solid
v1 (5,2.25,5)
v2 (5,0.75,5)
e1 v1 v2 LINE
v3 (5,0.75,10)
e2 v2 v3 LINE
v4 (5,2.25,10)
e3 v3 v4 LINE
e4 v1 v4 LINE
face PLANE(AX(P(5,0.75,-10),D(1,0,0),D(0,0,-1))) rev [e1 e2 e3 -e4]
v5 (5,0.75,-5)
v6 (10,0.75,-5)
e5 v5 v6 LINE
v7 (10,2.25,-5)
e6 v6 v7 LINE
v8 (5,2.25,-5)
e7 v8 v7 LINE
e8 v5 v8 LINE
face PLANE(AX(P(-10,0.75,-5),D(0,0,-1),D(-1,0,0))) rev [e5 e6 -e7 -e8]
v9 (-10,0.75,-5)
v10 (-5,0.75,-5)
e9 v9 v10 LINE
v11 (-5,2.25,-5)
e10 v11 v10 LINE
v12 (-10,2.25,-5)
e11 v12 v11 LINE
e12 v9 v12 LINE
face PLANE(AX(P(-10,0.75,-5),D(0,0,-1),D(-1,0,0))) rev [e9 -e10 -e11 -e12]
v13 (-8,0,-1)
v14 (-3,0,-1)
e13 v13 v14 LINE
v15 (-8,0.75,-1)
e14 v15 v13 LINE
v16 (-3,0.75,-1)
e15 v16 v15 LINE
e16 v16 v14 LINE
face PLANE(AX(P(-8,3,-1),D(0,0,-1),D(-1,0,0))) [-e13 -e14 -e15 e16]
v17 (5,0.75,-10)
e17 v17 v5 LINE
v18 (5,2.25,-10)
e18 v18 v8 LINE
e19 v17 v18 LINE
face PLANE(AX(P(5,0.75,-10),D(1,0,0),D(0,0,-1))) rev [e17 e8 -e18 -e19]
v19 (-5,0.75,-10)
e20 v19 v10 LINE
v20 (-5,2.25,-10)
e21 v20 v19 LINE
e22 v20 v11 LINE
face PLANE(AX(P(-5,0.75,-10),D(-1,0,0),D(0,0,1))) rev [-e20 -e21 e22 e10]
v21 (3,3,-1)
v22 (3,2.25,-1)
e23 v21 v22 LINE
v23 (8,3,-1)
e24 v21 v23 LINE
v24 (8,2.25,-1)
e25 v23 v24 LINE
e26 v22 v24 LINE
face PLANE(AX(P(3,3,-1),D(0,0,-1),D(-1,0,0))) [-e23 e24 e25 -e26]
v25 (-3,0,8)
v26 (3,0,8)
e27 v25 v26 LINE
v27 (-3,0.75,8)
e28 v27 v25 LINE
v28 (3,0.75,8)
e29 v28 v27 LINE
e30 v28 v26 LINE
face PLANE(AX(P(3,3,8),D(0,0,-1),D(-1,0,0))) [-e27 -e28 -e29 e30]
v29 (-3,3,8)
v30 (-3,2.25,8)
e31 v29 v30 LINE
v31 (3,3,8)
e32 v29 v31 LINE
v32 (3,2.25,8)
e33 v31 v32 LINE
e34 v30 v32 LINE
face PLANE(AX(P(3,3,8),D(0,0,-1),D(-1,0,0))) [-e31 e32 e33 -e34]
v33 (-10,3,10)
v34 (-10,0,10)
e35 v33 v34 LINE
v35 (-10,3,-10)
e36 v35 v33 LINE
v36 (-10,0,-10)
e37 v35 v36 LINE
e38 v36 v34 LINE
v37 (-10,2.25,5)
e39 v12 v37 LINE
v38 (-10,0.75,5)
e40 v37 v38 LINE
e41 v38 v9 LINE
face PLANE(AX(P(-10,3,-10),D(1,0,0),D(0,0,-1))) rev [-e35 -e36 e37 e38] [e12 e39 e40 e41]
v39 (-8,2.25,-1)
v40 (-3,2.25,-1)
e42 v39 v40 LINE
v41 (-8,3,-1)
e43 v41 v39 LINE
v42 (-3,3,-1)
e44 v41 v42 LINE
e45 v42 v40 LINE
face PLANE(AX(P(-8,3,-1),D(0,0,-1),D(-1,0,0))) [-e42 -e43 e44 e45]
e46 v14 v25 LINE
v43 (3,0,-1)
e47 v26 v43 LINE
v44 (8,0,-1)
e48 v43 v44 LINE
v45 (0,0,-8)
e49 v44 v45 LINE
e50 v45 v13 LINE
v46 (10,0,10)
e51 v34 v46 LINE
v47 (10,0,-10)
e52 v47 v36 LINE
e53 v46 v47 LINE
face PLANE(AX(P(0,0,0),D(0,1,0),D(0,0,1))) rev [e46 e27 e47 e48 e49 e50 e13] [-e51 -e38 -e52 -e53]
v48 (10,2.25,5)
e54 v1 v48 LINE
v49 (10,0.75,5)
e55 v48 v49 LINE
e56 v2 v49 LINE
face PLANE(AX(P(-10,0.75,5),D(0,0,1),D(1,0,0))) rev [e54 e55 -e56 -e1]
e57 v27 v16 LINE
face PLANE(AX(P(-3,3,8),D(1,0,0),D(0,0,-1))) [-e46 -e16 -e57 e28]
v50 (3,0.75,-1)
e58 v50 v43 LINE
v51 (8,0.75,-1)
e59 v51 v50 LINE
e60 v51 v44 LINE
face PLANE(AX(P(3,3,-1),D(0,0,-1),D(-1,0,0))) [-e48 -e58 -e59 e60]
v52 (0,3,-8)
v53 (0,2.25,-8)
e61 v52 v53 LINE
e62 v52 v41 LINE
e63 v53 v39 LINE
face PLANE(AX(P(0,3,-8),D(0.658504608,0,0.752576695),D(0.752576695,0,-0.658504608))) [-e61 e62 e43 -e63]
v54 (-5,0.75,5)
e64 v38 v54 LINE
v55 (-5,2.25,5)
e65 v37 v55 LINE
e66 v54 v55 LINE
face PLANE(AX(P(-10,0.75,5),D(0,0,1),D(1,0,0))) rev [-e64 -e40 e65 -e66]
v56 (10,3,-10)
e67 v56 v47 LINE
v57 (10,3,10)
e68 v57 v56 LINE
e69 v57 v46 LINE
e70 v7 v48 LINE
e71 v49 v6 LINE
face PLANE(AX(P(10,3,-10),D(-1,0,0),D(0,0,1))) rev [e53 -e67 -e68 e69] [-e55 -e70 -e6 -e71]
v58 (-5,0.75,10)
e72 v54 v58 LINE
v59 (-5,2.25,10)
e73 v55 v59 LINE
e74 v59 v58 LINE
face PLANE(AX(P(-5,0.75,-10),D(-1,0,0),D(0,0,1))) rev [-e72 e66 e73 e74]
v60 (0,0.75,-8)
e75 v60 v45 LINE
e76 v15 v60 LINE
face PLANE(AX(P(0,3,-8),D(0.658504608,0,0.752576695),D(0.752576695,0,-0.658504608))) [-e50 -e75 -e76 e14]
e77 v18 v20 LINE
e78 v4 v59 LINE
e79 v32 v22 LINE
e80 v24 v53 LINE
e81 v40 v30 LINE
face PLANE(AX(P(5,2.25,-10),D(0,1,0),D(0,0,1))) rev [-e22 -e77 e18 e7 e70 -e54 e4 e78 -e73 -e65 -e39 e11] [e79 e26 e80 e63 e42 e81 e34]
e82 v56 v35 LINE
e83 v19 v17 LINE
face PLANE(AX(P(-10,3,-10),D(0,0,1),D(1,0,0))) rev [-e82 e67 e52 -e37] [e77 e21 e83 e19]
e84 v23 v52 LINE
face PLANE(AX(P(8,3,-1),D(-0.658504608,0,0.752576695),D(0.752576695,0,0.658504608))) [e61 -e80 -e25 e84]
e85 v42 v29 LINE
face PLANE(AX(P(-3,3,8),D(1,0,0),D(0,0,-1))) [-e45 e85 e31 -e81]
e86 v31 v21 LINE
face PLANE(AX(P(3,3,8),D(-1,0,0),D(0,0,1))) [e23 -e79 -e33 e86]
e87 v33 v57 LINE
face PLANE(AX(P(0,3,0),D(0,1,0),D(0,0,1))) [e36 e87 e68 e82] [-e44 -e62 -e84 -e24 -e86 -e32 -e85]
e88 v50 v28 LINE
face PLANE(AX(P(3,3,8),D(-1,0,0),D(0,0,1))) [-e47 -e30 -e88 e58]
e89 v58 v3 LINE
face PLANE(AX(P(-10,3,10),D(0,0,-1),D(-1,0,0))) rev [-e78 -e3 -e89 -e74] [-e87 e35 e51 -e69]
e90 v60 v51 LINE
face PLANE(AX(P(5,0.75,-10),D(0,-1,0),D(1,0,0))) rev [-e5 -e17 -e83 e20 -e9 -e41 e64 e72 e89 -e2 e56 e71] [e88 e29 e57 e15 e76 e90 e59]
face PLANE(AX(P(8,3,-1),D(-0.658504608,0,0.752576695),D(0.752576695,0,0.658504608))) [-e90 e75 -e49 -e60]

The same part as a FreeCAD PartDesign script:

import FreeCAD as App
import Part
import Sketcher

V = App.Vector


def add_polygon(sketch, points):
    """Adds a closed chain of lines whose ends are joined by coincident constraints."""
    first, n = sketch.GeometryCount, len(points)
    for a, b in zip(points, points[1:] + points[:1]):
        sketch.addGeometry(Part.LineSegment(App.Vector(*a, 0), App.Vector(*b, 0)), False)
    for i in range(n):
        sketch.addConstraint(Sketcher.Constraint("Coincident", first + i, 2, first + (i + 1) % n, 1))

doc = App.newDocument("Part")
params = doc.addObject("Spreadsheet::Sheet", "Params")
for row, (alias, value) in enumerate([
    ("sketch1_width", "20 mm"),
    ("sketch1_width2", "5 mm"),
    ("sketch1_width3", "6 mm"),
    ("sketch1_height", "9 mm"),
    ("pad1_length", "3 mm"),
    ("sketch2_width", "10 mm"),
    ("sketch2_height", "1.5 mm"),
    ("sketch3_height", "10 mm"),
    ("sketch3_width", "1.5 mm"),
], start=1):
    params.set(f"A{row}", alias)
    params.set(f"B{row}", "=" + value)
    params.setAlias(f"B{row}", alias)

body = doc.addObject("PartDesign::Body", "Body")

# Sketch on XZ plane
sketch1 = doc.addObject("Sketcher::SketchObject", "Sketch")
body.addObject(sketch1)
sketch1.AttachmentSupport = (doc.XZ_Plane, [""])
sketch1.MapMode = "FlatFace"
add_polygon(sketch1, [(-10, -10), (-10, 10), (10, 10), (10, -10)])  # lines 0-3
add_polygon(sketch1, [(-3, -1), (-8, -1), (0, -8), (8, -1), (3, -1), (3, 8), (-3, 8)])  # lines 4-10
sketch1.addConstraint([
    Sketcher.Constraint("Vertical", 0),
    Sketcher.Constraint("Horizontal", 1),
    Sketcher.Constraint("Vertical", 2),
    Sketcher.Constraint("Horizontal", 3),
    Sketcher.Constraint("Horizontal", 4),
    Sketcher.Constraint("Horizontal", 7),
    Sketcher.Constraint("Vertical", 8),
    Sketcher.Constraint("Horizontal", 9),
    Sketcher.Constraint("Vertical", 10),
    Sketcher.Constraint("Symmetric", 0, 2, 2, 2, -1, 1),
    Sketcher.Constraint("Symmetric", 4, 2, 6, 2, -2),
    Sketcher.Constraint("PointOnObject", 5, 2, -2),
    Sketcher.Constraint("Equal", 4, 7),
    Sketcher.Constraint("Equal", 3, 0),
    Sketcher.Constraint("DistanceX", 1, 1, 1, 2, 20.0),
    Sketcher.Constraint("DistanceX", 4, 2, 4, 1, 5.0),
    Sketcher.Constraint("DistanceX", 9, 2, 9, 1, 6.0),
    Sketcher.Constraint("DistanceY", 8, 1, 8, 2, 9.0),
    Sketcher.Constraint("DistanceY", 4, 2, -1, 1, 1.0),
    Sketcher.Constraint("DistanceY", 5, 2, -1, 1, 8.0),
])
sketch1.setExpression("Constraints[25]", "Params.sketch1_width")
sketch1.setExpression("Constraints[26]", "Params.sketch1_width2")
sketch1.setExpression("Constraints[27]", "Params.sketch1_width3")
sketch1.setExpression("Constraints[28]", "Params.sketch1_height")
pad1 = doc.addObject("PartDesign::Pad", "Pad")
body.addObject(pad1)
pad1.Profile = sketch1
pad1.setExpression("Length", "Params.pad1_length")
pad1.Reversed = True

# Sketch on XY plane
sketch2 = doc.addObject("Sketcher::SketchObject", "Sketch001")
body.addObject(sketch2)
sketch2.AttachmentSupport = (doc.XY_Plane, [""])
sketch2.MapMode = "FlatFace"
sketch2.AttachmentOffset = App.Placement(V(0, 0, 10), App.Rotation())
add_polygon(sketch2, [(-5, 2.2), (-5, 0.8), (5, 0.8), (5, 2.2)])  # lines 0-3
sketch2.addConstraint([
    Sketcher.Constraint("Vertical", 0),
    Sketcher.Constraint("Horizontal", 1),
    Sketcher.Constraint("Vertical", 2),
    Sketcher.Constraint("Horizontal", 3),
    Sketcher.Constraint("DistanceX", 1, 1, 1, 2, 10.0),
    Sketcher.Constraint("DistanceY", 0, 2, 0, 1, 1.5),
    Sketcher.Constraint("DistanceX", 0, 2, -1, 1, 5.0),
    Sketcher.Constraint("DistanceY", -1, 1, 0, 2, 0.75),
])
sketch2.setExpression("Constraints[8]", "Params.sketch2_width")
sketch2.setExpression("Constraints[9]", "Params.sketch2_height")
pocket1 = doc.addObject("PartDesign::Pocket", "Pocket")
body.addObject(pocket1)
pocket1.Profile = sketch2
pocket1.Type = "ThroughAll"

# Sketch on YZ plane
sketch3 = doc.addObject("Sketcher::SketchObject", "Sketch002")
body.addObject(sketch3)
sketch3.AttachmentSupport = (doc.YZ_Plane, [""])
sketch3.MapMode = "FlatFace"
sketch3.AttachmentOffset = App.Placement(V(0, 0, 10), App.Rotation())
add_polygon(sketch3, [(2.2, 5), (0.8, 5), (0.8, -5), (2.2, -5)])  # lines 0-3
sketch3.addConstraint([
    Sketcher.Constraint("Horizontal", 0),
    Sketcher.Constraint("Vertical", 1),
    Sketcher.Constraint("Horizontal", 2),
    Sketcher.Constraint("Vertical", 3),
    Sketcher.Constraint("DistanceY", 1, 2, 1, 1, 10.0),
    Sketcher.Constraint("DistanceX", 0, 2, 0, 1, 1.5),
    Sketcher.Constraint("DistanceY", -1, 1, 0, 2, 5.0),
    Sketcher.Constraint("DistanceX", -1, 1, 0, 2, 0.75),
])
sketch3.setExpression("Constraints[8]", "Params.sketch3_height")
sketch3.setExpression("Constraints[9]", "Params.sketch3_width")
pocket2 = doc.addObject("PartDesign::Pocket", "Pocket001")
body.addObject(pocket2)
pocket2.Profile = sketch3
pocket2.Type = "ThroughAll"

doc.recompute()
